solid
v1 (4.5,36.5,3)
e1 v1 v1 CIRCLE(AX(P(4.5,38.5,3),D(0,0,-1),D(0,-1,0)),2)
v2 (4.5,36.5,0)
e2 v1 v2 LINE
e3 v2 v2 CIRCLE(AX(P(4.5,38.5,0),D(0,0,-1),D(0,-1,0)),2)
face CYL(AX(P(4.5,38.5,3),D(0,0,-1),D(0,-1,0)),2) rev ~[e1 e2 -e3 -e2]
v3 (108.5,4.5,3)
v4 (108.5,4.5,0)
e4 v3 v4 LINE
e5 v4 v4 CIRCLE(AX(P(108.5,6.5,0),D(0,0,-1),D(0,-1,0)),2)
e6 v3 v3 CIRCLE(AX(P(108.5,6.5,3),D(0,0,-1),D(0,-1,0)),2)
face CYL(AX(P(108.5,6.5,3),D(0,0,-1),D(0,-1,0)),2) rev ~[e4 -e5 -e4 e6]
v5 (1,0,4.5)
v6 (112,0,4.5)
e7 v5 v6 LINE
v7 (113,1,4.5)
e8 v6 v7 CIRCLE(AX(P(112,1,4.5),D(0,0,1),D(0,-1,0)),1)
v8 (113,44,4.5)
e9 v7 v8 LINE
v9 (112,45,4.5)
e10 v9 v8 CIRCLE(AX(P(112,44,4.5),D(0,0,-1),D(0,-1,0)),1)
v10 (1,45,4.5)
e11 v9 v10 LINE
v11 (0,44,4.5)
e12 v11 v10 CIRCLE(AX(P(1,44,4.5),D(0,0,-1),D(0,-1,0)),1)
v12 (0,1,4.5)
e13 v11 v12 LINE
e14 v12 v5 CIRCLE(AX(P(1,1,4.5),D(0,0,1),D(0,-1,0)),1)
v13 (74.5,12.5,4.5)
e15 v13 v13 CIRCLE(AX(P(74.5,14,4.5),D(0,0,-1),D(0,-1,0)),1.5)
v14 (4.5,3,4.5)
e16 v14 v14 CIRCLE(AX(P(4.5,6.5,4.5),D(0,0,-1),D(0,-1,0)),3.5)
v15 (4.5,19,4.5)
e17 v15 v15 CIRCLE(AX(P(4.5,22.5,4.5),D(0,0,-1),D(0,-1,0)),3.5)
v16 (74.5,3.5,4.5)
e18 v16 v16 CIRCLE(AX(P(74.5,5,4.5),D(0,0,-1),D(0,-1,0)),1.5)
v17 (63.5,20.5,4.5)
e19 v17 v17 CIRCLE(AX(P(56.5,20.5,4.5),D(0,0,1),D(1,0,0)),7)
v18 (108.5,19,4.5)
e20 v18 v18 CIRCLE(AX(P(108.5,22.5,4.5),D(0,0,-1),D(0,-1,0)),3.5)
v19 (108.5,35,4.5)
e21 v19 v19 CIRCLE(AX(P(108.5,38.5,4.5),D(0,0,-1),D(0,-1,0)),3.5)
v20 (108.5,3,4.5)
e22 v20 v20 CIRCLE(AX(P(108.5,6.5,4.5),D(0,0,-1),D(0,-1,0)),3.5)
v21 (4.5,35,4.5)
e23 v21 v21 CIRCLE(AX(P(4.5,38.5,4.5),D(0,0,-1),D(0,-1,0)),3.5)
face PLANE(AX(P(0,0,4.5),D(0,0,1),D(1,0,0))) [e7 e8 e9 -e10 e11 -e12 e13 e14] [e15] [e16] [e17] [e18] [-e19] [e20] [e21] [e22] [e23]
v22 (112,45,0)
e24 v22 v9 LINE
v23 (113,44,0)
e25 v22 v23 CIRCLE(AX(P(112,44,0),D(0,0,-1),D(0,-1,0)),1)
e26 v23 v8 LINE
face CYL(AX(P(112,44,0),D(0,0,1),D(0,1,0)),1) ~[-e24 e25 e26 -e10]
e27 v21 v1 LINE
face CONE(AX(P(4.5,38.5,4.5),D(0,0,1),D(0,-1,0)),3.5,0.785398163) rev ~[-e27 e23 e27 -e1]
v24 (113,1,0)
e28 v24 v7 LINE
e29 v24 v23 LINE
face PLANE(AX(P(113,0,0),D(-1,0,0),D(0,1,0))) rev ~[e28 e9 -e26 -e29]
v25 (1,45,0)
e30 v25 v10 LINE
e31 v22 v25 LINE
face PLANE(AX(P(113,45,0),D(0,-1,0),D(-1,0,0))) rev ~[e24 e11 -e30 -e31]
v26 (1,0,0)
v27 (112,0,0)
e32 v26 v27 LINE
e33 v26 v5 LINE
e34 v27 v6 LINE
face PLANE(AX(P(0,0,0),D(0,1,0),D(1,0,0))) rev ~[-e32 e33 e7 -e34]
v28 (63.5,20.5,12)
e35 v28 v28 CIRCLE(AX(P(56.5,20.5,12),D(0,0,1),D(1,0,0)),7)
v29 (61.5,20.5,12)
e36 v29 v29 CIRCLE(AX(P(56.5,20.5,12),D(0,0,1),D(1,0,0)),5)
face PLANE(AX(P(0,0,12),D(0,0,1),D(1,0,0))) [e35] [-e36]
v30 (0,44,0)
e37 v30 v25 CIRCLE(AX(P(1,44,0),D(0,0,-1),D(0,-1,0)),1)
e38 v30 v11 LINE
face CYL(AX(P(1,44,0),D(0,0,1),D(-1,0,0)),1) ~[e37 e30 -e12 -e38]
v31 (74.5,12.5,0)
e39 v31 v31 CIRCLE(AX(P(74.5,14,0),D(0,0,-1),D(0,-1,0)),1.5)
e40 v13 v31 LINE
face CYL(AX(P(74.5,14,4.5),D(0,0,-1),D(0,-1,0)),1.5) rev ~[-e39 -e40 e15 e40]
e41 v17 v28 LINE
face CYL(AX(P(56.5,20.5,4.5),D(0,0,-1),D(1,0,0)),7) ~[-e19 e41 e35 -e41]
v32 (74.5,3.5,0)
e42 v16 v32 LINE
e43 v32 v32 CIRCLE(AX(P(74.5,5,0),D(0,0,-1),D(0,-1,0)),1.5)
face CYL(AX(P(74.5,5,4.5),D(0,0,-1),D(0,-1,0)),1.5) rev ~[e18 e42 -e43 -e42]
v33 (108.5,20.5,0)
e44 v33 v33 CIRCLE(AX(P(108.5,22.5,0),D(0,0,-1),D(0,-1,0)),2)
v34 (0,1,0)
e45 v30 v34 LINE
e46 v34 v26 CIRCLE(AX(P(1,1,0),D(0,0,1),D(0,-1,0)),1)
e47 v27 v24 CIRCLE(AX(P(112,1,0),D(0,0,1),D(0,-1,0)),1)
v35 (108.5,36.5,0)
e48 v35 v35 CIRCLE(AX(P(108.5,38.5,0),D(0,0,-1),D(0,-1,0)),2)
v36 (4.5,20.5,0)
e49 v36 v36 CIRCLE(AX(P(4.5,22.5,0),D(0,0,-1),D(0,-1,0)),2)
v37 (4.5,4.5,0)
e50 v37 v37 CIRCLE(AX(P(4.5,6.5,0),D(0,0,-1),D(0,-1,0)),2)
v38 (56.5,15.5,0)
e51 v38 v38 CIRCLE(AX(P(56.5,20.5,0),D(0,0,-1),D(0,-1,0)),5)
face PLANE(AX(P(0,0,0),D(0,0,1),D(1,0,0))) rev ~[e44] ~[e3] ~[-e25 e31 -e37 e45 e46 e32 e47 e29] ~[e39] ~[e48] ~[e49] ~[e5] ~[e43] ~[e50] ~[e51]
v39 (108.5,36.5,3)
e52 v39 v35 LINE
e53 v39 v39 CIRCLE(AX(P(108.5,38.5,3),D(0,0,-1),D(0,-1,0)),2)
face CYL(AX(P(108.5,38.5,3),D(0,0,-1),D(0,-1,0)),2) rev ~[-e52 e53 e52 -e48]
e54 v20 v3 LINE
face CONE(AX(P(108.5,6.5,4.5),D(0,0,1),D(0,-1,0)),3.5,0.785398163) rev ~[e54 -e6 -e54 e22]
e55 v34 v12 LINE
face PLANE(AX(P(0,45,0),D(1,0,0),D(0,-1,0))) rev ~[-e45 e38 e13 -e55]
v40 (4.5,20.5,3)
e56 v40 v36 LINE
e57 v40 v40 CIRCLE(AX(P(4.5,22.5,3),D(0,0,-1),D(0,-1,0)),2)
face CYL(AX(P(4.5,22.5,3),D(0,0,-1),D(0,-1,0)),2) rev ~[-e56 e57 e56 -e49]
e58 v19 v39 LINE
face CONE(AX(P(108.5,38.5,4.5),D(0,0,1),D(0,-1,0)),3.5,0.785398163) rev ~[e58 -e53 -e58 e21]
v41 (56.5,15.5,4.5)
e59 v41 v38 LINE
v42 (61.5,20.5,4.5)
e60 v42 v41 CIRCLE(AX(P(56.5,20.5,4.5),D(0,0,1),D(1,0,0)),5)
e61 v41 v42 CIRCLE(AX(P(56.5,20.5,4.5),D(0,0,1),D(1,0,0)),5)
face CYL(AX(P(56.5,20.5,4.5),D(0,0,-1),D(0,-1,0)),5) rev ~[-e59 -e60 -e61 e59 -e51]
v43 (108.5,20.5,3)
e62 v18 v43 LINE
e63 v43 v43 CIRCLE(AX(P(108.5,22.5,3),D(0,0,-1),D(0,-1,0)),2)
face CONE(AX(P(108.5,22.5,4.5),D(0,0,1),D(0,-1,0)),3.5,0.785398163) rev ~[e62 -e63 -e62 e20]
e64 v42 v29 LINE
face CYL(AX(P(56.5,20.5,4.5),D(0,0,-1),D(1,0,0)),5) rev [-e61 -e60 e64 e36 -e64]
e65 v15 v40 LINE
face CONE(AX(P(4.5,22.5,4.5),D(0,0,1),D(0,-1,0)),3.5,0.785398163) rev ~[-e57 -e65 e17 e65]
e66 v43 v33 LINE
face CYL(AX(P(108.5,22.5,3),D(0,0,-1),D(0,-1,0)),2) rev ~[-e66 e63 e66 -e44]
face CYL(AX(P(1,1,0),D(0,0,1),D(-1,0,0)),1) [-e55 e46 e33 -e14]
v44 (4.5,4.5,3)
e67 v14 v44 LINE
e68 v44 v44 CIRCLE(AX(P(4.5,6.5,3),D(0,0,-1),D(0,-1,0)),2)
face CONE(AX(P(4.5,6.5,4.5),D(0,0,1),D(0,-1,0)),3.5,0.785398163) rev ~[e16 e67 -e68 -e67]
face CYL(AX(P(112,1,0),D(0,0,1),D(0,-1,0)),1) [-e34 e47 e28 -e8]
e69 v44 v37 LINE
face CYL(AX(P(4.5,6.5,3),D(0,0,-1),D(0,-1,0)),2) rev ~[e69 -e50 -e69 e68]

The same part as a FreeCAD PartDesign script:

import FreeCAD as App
import Part
import Sketcher
from FreeCAD import Vector


def edges_at(feature, points):
    """Names of the edges that pass closest to the given points."""
    edges = feature.Shape.Edges
    near = lambda p: min(range(len(edges)), key=lambda i: edges[i].distToShape(Part.Vertex(*p))[0])
    return sorted({f"Edge{near(p) + 1}" for p in points})


def add_polygon(sketch, points):
    """Adds a closed chain of lines whose ends are joined by coincident constraints."""
    first, n = sketch.GeometryCount, len(points)
    for a, b in zip(points, points[1:] + points[:1]):
        sketch.addGeometry(Part.LineSegment(App.Vector(*a, 0), App.Vector(*b, 0)), False)
    for i in range(n):
        sketch.addConstraint(Sketcher.Constraint("Coincident", first + i, 2, first + (i + 1) % n, 1))

doc = App.newDocument("Part")
params = doc.addObject("Spreadsheet::Sheet", "Params")
for row, (alias, value) in enumerate([
    ("sketch1_width", "113 mm"),
    ("sketch1_height", "45 mm"),
    ("pad1_length", "4.5 mm"),
    ("sketch2_diameter", "14 mm"),
    ("sketch2_diameter2", "10 mm"),
    ("pad2_length", "7.5 mm"),
    ("sketch3_diameter", "10 mm"),
    ("hole_diameter", "10 mm"),
    ("sketch4_diameter", "4 mm"),
    ("hole2_diameter", "4 mm"),
    ("hole2_csink_diameter", "7 mm"),
    ("sketch5_diameter", "3 mm"),
    ("hole3_diameter", "3 mm"),
    ("fillet_radius", "1 mm"),
], start=1):
    params.set(f"A{row}", alias)
    params.set(f"B{row}", "=" + value)
    params.setAlias(f"B{row}", alias)

body = doc.addObject("PartDesign::Body", "Body")

# Sketch on XY plane
sketch1 = body.newObject("Sketcher::SketchObject", "Sketch")
sketch1.AttachmentSupport = (doc.getObject("XY_Plane"), [""])
sketch1.MapMode = "FlatFace"
add_polygon(sketch1, [(0, 45), (0, 0), (113, 0), (113, 45)])  # lines 0-3
sketch1.addConstraint(Sketcher.Constraint("Vertical", 0))
sketch1.addConstraint(Sketcher.Constraint("Horizontal", 1))
sketch1.addConstraint(Sketcher.Constraint("Vertical", 2))
sketch1.addConstraint(Sketcher.Constraint("Horizontal", 3))
sketch1.addConstraint(Sketcher.Constraint("Coincident", 0, 2, -1, 1))
sketch1.addConstraint(Sketcher.Constraint("DistanceX", 1, 1, 1, 2, 113.0))
sketch1.addConstraint(Sketcher.Constraint("DistanceY", 0, 2, 0, 1, 45.0))
sketch1.setExpression("Constraints[9]", "Params.sketch1_width")
sketch1.setExpression("Constraints[10]", "Params.sketch1_height")
pad1 = body.newObject("PartDesign::Pad", "Pad")
pad1.Profile = sketch1
pad1.setExpression("Length", "Params.pad1_length")

# Sketch on XY plane
sketch2 = body.newObject("Sketcher::SketchObject", "Sketch001")
sketch2.AttachmentSupport = (doc.getObject("XY_Plane"), [""])
sketch2.MapMode = "FlatFace"
sketch2.AttachmentOffset = App.Placement(Vector(0, 0, 4.5), App.Rotation())
sketch2.addGeometry(Part.Circle(Vector(56.5, 20.5, 0), Vector(0, 0, 1), 7), False)
sketch2.addGeometry(Part.Circle(Vector(56.5, 20.5, 0), Vector(0, 0, 1), 5), False)
sketch2.addConstraint(Sketcher.Constraint("Coincident", 1, 3, 0, 3))
sketch2.addConstraint(Sketcher.Constraint("Diameter", 0, 14.0))
sketch2.addConstraint(Sketcher.Constraint("Diameter", 1, 10.0))
sketch2.addConstraint(Sketcher.Constraint("DistanceX", -1, 1, 0, 3, 56.5))
sketch2.addConstraint(Sketcher.Constraint("DistanceY", -1, 1, 0, 3, 20.5))
sketch2.setExpression("Constraints[1]", "Params.sketch2_diameter")
sketch2.setExpression("Constraints[2]", "Params.sketch2_diameter2")
pad2 = body.newObject("PartDesign::Pad", "Pad001")
pad2.Profile = sketch2
pad2.setExpression("Length", "Params.pad2_length")

# Sketch on XY plane
sketch3 = body.newObject("Sketcher::SketchObject", "Sketch002")
sketch3.AttachmentSupport = (doc.getObject("XY_Plane"), [""])
sketch3.MapMode = "FlatFace"
sketch3.AttachmentOffset = App.Placement(Vector(0, 0, 4.5), App.Rotation())
sketch3.addGeometry(Part.Circle(Vector(56.5, 20.5, 0), Vector(0, 0, 1), 5), False)
sketch3.addConstraint(Sketcher.Constraint("Diameter", 0, 10.0))
sketch3.addConstraint(Sketcher.Constraint("DistanceX", -1, 1, 0, 3, 56.5))
sketch3.addConstraint(Sketcher.Constraint("DistanceY", -1, 1, 0, 3, 20.5))
sketch3.setExpression("Constraints[0]", "Params.sketch3_diameter")
doc.recompute()
hole = body.newObject("PartDesign::Hole", "Hole")
hole.Profile = sketch3
hole.ThreadType = "None"
hole.setExpression("Diameter", "Params.hole_diameter")
hole.DepthType = "ThroughAll"

# Sketch on XY plane
sketch4 = body.newObject("Sketcher::SketchObject", "Sketch003")
sketch4.AttachmentSupport = (doc.getObject("XY_Plane"), [""])
sketch4.MapMode = "FlatFace"
sketch4.AttachmentOffset = App.Placement(Vector(0, 0, 4.5), App.Rotation())
sketch4.addGeometry(Part.Circle(Vector(4.5, 38.5, 0), Vector(0, 0, 1), 2), False)
sketch4.addGeometry(Part.Circle(Vector(4.5, 22.5, 0), Vector(0, 0, 1), 2), False)
sketch4.addGeometry(Part.Circle(Vector(4.5, 6.5, 0), Vector(0, 0, 1), 2), False)
sketch4.addGeometry(Part.Circle(Vector(108.5, 38.5, 0), Vector(0, 0, 1), 2), False)
sketch4.addGeometry(Part.Circle(Vector(108.5, 22.5, 0), Vector(0, 0, 1), 2), False)
sketch4.addGeometry(Part.Circle(Vector(108.5, 6.5, 0), Vector(0, 0, 1), 2), False)
sketch4.addConstraint(Sketcher.Constraint("Equal", 0, 1))
sketch4.addConstraint(Sketcher.Constraint("Equal", 1, 2))
sketch4.addConstraint(Sketcher.Constraint("Equal", 2, 3))
sketch4.addConstraint(Sketcher.Constraint("Equal", 3, 4))
sketch4.addConstraint(Sketcher.Constraint("Equal", 4, 5))
sketch4.addConstraint(Sketcher.Constraint("Horizontal", 0, 3, 3, 3))
sketch4.addConstraint(Sketcher.Constraint("Horizontal", 1, 3, 4, 3))
sketch4.addConstraint(Sketcher.Constraint("Horizontal", 2, 3, 5, 3))
sketch4.addConstraint(Sketcher.Constraint("Vertical", 0, 3, 1, 3))
sketch4.addConstraint(Sketcher.Constraint("Vertical", 1, 3, 2, 3))
sketch4.addConstraint(Sketcher.Constraint("Vertical", 3, 3, 4, 3))
sketch4.addConstraint(Sketcher.Constraint("Vertical", 4, 3, 5, 3))
sketch4.addConstraint(Sketcher.Constraint("Diameter", 0, 4.0))
sketch4.addConstraint(Sketcher.Constraint("DistanceY", 1, 3, 0, 3, 16.0))
sketch4.addConstraint(Sketcher.Constraint("DistanceY", 2, 3, 1, 3, 16.0))
sketch4.addConstraint(Sketcher.Constraint("DistanceX", 0, 3, 3, 3, 104.0))
sketch4.addConstraint(Sketcher.Constraint("DistanceX", -1, 1, 0, 3, 4.5))
sketch4.addConstraint(Sketcher.Constraint("DistanceY", -1, 1, 0, 3, 38.5))
sketch4.setExpression("Constraints[12]", "Params.sketch4_diameter")
doc.recompute()
hole2 = body.newObject("PartDesign::Hole", "Hole001")
hole2.Profile = sketch4
hole2.ThreadType = "None"
hole2.setExpression("Diameter", "Params.hole2_diameter")
hole2.DepthType = "ThroughAll"
hole2.HoleCutType = "Countersink"
hole2.setExpression("HoleCutDiameter", "Params.hole2_csink_diameter")
hole2.HoleCutCountersinkAngle = 90

# Sketch on XY plane
sketch5 = body.newObject("Sketcher::SketchObject", "Sketch004")
sketch5.AttachmentSupport = (doc.getObject("XY_Plane"), [""])
sketch5.MapMode = "FlatFace"
sketch5.AttachmentOffset = App.Placement(Vector(0, 0, 4.5), App.Rotation())
sketch5.addGeometry(Part.Circle(Vector(74.5, 14, 0), Vector(0, 0, 1), 1.5), False)
sketch5.addGeometry(Part.Circle(Vector(74.5, 5, 0), Vector(0, 0, 1), 1.5), False)
sketch5.addConstraint(Sketcher.Constraint("Equal", 0, 1))
sketch5.addConstraint(Sketcher.Constraint("Vertical", 0, 3, 1, 3))
sketch5.addConstraint(Sketcher.Constraint("Diameter", 0, 3.0))
sketch5.addConstraint(Sketcher.Constraint("DistanceY", -1, 1, 0, 3, 14.0))
sketch5.addConstraint(Sketcher.Constraint("DistanceY", -1, 1, 1, 3, 5.0))
sketch5.addConstraint(Sketcher.Constraint("DistanceX", -1, 1, 0, 3, 74.5))
sketch5.setExpression("Constraints[2]", "Params.sketch5_diameter")
doc.recompute()
hole3 = body.newObject("PartDesign::Hole", "Hole002")
hole3.Profile = sketch5
hole3.ThreadType = "None"
hole3.setExpression("Diameter", "Params.hole3_diameter")
hole3.DepthType = "ThroughAll"
doc.recompute()

fillet = body.newObject("PartDesign::Fillet", "Fillet")
fillet.Base = (hole3, edges_at(hole3, [
    (113, 0, 2.25),
    (113, 45, 2.25),
    (0, 45, 2.25),
    (0, 0, 2.25),
]))
fillet.setExpression("Radius", "Params.fillet_radius")

doc.recompute()
